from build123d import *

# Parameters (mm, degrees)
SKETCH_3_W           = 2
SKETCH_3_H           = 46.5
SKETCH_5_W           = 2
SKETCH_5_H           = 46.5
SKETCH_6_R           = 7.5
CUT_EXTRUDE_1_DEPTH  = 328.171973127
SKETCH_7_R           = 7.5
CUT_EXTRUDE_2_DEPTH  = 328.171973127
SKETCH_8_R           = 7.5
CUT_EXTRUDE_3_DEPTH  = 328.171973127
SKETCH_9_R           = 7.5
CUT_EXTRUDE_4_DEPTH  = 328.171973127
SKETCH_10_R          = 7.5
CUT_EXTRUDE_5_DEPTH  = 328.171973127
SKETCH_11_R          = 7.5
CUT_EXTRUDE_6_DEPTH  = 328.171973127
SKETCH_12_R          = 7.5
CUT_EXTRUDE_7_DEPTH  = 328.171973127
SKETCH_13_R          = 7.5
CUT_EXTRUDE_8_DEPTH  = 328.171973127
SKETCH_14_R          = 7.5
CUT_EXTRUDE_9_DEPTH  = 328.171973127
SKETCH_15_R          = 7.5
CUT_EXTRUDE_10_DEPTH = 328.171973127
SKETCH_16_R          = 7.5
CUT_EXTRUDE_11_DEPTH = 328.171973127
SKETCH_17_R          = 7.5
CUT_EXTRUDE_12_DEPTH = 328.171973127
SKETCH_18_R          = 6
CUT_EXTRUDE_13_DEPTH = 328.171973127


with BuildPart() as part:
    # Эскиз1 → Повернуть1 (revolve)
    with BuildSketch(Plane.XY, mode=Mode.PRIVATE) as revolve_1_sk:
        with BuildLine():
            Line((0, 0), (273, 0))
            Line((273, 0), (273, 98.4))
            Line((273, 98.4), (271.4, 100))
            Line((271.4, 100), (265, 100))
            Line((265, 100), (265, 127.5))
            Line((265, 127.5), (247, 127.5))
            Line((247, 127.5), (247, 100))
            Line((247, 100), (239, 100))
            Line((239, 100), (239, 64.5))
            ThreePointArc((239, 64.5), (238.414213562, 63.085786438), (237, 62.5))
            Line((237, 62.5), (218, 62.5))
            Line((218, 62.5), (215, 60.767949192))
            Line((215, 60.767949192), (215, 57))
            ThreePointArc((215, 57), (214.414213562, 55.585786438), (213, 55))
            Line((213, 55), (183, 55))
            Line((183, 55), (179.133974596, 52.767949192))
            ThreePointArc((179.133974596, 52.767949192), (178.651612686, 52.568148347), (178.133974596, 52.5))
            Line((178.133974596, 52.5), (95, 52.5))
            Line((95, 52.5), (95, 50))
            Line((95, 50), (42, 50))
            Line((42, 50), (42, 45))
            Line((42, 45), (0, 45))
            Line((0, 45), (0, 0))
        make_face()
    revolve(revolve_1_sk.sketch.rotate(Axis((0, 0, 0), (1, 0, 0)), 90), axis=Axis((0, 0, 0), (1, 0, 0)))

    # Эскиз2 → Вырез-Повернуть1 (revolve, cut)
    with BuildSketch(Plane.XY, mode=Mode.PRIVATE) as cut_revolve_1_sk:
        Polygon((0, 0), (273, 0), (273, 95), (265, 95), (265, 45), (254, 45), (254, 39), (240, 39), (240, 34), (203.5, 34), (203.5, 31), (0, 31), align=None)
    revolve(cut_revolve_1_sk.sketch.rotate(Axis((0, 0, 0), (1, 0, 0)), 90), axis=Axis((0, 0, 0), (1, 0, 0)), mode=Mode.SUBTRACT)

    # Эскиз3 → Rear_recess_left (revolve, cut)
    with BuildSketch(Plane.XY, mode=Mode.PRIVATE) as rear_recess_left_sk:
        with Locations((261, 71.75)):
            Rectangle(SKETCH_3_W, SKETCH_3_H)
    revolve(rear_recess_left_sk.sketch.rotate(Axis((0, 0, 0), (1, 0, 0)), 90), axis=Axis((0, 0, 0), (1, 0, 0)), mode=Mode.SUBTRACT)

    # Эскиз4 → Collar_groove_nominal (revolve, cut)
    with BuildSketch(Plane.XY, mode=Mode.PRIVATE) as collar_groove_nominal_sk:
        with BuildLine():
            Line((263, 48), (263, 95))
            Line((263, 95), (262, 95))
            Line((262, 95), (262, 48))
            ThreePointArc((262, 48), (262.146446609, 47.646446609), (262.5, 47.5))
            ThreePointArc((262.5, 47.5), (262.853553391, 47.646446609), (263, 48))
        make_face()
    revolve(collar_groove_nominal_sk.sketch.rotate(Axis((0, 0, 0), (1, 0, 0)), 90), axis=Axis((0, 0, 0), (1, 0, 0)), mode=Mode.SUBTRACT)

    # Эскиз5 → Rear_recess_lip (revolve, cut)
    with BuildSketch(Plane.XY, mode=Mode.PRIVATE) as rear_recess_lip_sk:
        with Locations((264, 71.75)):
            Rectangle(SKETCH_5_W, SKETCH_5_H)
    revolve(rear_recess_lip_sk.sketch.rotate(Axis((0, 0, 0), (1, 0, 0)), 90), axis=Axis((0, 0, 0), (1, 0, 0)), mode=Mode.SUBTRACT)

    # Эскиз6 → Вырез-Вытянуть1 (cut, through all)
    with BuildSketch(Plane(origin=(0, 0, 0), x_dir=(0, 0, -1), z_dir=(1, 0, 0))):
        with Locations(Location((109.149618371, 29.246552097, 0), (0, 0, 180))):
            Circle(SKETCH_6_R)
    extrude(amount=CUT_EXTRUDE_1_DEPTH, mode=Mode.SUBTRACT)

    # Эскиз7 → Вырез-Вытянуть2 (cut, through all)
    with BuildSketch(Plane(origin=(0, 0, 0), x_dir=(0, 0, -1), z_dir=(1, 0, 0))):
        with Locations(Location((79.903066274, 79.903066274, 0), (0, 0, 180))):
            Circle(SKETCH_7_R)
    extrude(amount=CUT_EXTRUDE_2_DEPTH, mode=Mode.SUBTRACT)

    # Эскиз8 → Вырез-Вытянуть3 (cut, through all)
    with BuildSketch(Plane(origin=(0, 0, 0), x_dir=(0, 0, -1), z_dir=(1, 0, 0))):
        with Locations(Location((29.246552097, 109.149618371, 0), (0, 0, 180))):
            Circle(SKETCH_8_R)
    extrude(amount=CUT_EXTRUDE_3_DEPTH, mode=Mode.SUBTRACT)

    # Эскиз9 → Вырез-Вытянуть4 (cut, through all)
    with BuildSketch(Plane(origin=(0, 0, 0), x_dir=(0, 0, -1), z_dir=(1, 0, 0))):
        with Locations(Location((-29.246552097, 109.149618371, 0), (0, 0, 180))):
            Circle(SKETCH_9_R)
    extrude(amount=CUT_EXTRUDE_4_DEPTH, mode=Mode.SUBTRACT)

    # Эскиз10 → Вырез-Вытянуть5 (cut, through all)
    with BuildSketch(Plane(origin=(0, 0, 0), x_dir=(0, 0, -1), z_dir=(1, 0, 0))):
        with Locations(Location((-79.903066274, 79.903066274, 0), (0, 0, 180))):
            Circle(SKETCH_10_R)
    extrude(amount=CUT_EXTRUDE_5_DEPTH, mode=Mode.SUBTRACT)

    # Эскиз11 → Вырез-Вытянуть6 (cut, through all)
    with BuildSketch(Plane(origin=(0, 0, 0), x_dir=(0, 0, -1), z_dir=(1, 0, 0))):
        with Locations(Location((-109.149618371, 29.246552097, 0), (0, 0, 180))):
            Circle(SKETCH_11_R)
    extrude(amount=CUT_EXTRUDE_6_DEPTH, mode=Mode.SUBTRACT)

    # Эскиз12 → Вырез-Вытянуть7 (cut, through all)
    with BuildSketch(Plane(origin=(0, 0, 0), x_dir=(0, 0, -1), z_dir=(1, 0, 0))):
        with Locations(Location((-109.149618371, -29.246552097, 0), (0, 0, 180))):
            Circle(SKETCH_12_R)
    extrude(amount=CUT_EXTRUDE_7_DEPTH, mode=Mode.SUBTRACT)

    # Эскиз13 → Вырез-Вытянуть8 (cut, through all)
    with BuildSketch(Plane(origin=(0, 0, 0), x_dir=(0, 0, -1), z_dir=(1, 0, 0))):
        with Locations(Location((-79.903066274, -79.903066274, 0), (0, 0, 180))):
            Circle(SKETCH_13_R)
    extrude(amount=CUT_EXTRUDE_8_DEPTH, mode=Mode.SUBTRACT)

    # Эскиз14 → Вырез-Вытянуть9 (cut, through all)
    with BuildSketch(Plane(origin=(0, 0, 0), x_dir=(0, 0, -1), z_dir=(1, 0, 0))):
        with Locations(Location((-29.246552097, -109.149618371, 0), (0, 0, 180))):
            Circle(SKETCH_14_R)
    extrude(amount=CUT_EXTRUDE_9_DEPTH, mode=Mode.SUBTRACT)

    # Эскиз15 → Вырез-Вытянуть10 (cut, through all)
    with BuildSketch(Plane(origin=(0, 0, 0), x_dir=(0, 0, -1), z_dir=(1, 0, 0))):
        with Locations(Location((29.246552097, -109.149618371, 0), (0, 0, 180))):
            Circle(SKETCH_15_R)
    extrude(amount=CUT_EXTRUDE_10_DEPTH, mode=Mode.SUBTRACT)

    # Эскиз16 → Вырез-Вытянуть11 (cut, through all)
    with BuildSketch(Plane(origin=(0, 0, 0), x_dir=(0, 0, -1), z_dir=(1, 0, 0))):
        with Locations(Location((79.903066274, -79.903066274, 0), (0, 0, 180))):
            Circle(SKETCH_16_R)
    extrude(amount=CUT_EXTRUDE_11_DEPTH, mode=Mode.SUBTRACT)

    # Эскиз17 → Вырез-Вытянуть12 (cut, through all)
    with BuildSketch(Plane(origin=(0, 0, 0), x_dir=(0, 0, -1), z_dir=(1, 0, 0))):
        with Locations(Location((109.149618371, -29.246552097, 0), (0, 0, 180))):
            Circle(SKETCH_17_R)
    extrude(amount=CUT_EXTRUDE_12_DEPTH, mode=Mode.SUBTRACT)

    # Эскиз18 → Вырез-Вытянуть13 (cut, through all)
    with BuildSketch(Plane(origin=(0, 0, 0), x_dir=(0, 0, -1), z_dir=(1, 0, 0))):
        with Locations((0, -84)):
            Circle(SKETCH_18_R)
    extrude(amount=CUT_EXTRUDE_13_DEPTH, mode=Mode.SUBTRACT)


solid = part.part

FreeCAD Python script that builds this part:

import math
import FreeCAD as App
import Part
import Sketcher
from FreeCAD import Vector
Q = App.Units.Quantity


def add_polygon(sketch, points):
    """Adds a closed chain of lines whose ends are joined by coincident constraints."""
    first, n = sketch.GeometryCount, len(points)
    for a, b in zip(points, points[1:] + points[:1]):
        sketch.addGeometry(Part.LineSegment(App.Vector(*a, 0), App.Vector(*b, 0)), False)
    for i in range(n):
        sketch.addConstraint(Sketcher.Constraint("Coincident", first + i, 2, first + (i + 1) % n, 1))

doc = App.newDocument("Part")
body = doc.addObject("PartDesign::Body", "Body")

# Sketch on XY plane
sketch1 = body.newObject("Sketcher::SketchObject", "Sketch")
sketch1.AttachmentSupport = (doc.getObject("XY_Plane"), [""])
sketch1.MapMode = "FlatFace"
sketch1.addGeometry([
    Part.LineSegment(Vector(0, 0, 0), Vector(273, 0, 0)),  # 0
    Part.LineSegment(Vector(273, 0, 0), Vector(273, 98.4, 0)),  # 1
    Part.LineSegment(Vector(273, 98.4, 0), Vector(271.4, 100, 0)),  # 2
    Part.LineSegment(Vector(271.4, 100, 0), Vector(265, 100, 0)),  # 3
    Part.LineSegment(Vector(265, 100, 0), Vector(265, 127.5, 0)),  # 4
    Part.LineSegment(Vector(265, 127.5, 0), Vector(247, 127.5, 0)),  # 5
    Part.LineSegment(Vector(247, 127.5, 0), Vector(247, 100, 0)),  # 6
    Part.LineSegment(Vector(247, 100, 0), Vector(239, 100, 0)),  # 7
    Part.LineSegment(Vector(239, 100, 0), Vector(239, 64.5, 0)),  # 8
    Part.ArcOfCircle(Part.Circle(Vector(237, 64.5, 0), Vector(0, 0, 1), 2), math.radians(-90), math.radians(0)),  # 9
    Part.LineSegment(Vector(237, 62.5, 0), Vector(218, 62.5, 0)),  # 10
    Part.LineSegment(Vector(218, 62.5, 0), Vector(215, 60.767949, 0)),  # 11
    Part.LineSegment(Vector(215, 60.767949, 0), Vector(215, 57, 0)),  # 12
    Part.ArcOfCircle(Part.Circle(Vector(213, 57, 0), Vector(0, 0, 1), 2), math.radians(-90), math.radians(0)),  # 13
    Part.LineSegment(Vector(213, 55, 0), Vector(183, 55, 0)),  # 14
    Part.LineSegment(Vector(183, 55, 0), Vector(179.133975, 52.767949, 0)),  # 15
    Part.ArcOfCircle(Part.Circle(Vector(178.133975, 54.5, 0), Vector(0, 0, 1), 2), math.radians(-90), math.radians(-60)),  # 16
    Part.LineSegment(Vector(178.133975, 52.5, 0), Vector(95, 52.5, 0)),  # 17
    Part.LineSegment(Vector(95, 52.5, 0), Vector(95, 50, 0)),  # 18
    Part.LineSegment(Vector(95, 50, 0), Vector(42, 50, 0)),  # 19
    Part.LineSegment(Vector(42, 50, 0), Vector(42, 45, 0)),  # 20
    Part.LineSegment(Vector(42, 45, 0), Vector(0, 45, 0)),  # 21
    Part.LineSegment(Vector(0, 45, 0), Vector(0, 0, 0)),  # 22
], False)
sketch1.addConstraint([
    Sketcher.Constraint("Coincident", 0, 2, 1, 1),
    Sketcher.Constraint("Coincident", 1, 2, 2, 1),
    Sketcher.Constraint("Coincident", 2, 2, 3, 1),
    Sketcher.Constraint("Coincident", 3, 2, 4, 1),
    Sketcher.Constraint("Coincident", 4, 2, 5, 1),
    Sketcher.Constraint("Coincident", 5, 2, 6, 1),
    Sketcher.Constraint("Coincident", 6, 2, 7, 1),
    Sketcher.Constraint("Coincident", 7, 2, 8, 1),
    Sketcher.Constraint("Tangent", 8, 2, 9, 2),
    Sketcher.Constraint("Tangent", 9, 1, 10, 1),
    Sketcher.Constraint("Coincident", 10, 2, 11, 1),
    Sketcher.Constraint("Coincident", 11, 2, 12, 1),
    Sketcher.Constraint("Tangent", 12, 2, 13, 2),
    Sketcher.Constraint("Tangent", 13, 1, 14, 1),
    Sketcher.Constraint("Coincident", 14, 2, 15, 1),
    Sketcher.Constraint("Tangent", 15, 2, 16, 2),
    Sketcher.Constraint("Tangent", 16, 1, 17, 1),
    Sketcher.Constraint("Coincident", 17, 2, 18, 1),
    Sketcher.Constraint("Coincident", 18, 2, 19, 1),
    Sketcher.Constraint("Coincident", 19, 2, 20, 1),
    Sketcher.Constraint("Coincident", 20, 2, 21, 1),
    Sketcher.Constraint("Coincident", 21, 2, 22, 1),
    Sketcher.Constraint("Coincident", 22, 2, 0, 1),
    Sketcher.Constraint("Horizontal", 0),
    Sketcher.Constraint("Vertical", 1),
    Sketcher.Constraint("Horizontal", 3),
    Sketcher.Constraint("Vertical", 4),
    Sketcher.Constraint("Horizontal", 5),
    Sketcher.Constraint("Vertical", 6),
    Sketcher.Constraint("Horizontal", 7),
    Sketcher.Constraint("Vertical", 8),
    Sketcher.Constraint("Horizontal", 10),
    Sketcher.Constraint("Vertical", 12),
    Sketcher.Constraint("Horizontal", 14),
    Sketcher.Constraint("Horizontal", 17),
    Sketcher.Constraint("Vertical", 18),
    Sketcher.Constraint("Horizontal", 19),
    Sketcher.Constraint("Vertical", 20),
    Sketcher.Constraint("Horizontal", 21),
    Sketcher.Constraint("Vertical", 22),
    Sketcher.Constraint("Coincident", 22, 2, -1, 1),
    Sketcher.Constraint("Equal", 9, 13),
    Sketcher.Constraint("Equal", 13, 16),
    Sketcher.Constraint("Parallel", 11, 15),
    Sketcher.Constraint("Horizontal", 3, 2, 6, 2),
    Sketcher.Constraint("Radius", 9, 2.0),
    Sketcher.Constraint("DistanceX", 0, 1, 0, 2, 273.0),
    Sketcher.Constraint("DistanceX", 5, 2, 5, 1, 18.0),
    Sketcher.Constraint("DistanceX", 7, 2, 7, 1, 8.0),
    Sketcher.Constraint("DistanceX", 10, 2, 10, 1, 19.0),
    Sketcher.Constraint("DistanceX", 14, 2, 14, 1, 30.0),
    Sketcher.Constraint("DistanceX", 19, 2, 19, 1, 53.0),
    Sketcher.Constraint("DistanceX", 21, 2, 21, 1, 42.0),
    Sketcher.Constraint("DistanceY", 20, 2, 20, 1, 5.0),
    Sketcher.Constraint("DistanceY", 22, 2, 22, 1, 45.0),
    Sketcher.Constraint("Angle", 2, Q("135 deg")),
    Sketcher.Constraint("Angle", 11, Q("-150 deg")),
    Sketcher.Constraint("DistanceX", 3, 2, 3, 1, 6.4),
    Sketcher.Constraint("DistanceY", 1, 1, 1, 2, 98.4),
    Sketcher.Constraint("DistanceY", 4, 1, 4, 2, 27.5),
    Sketcher.Constraint("DistanceY", 8, 2, 8, 1, 35.5),
    Sketcher.Constraint("DistanceY", 18, 2, 18, 1, 2.5),
    Sketcher.Constraint("DistanceX", -1, 1, 9, 3, 237.0),
    Sketcher.Constraint("DistanceX", -1, 1, 13, 3, 213.0),
    Sketcher.Constraint("DistanceY", -1, 1, 13, 3, 57.0),
])
revolution = body.newObject("PartDesign::Revolution", "Revolution")
revolution.Profile = sketch1
revolution.ReferenceAxis = (sketch1, ["H_Axis"])
revolution.Angle = 360

# Sketch on XY plane
sketch2 = body.newObject("Sketcher::SketchObject", "Sketch001")
sketch2.AttachmentSupport = (doc.getObject("XY_Plane"), [""])
sketch2.MapMode = "FlatFace"
add_polygon(sketch2, [(0, 0), (273, 0), (273, 95), (265, 95), (265, 45), (254, 45), (254, 39), (240, 39), (240, 34), (203.5, 34), (203.5, 31), (0, 31)])  # lines 0-11
sketch2.addConstraint([
    Sketcher.Constraint("Horizontal", 0),
    Sketcher.Constraint("Vertical", 1),
    Sketcher.Constraint("Horizontal", 2),
    Sketcher.Constraint("Vertical", 3),
    Sketcher.Constraint("Horizontal", 4),
    Sketcher.Constraint("Vertical", 5),
    Sketcher.Constraint("Horizontal", 6),
    Sketcher.Constraint("Vertical", 7),
    Sketcher.Constraint("Horizontal", 8),
    Sketcher.Constraint("Vertical", 9),
    Sketcher.Constraint("Horizontal", 10),
    Sketcher.Constraint("Vertical", 11),
    Sketcher.Constraint("Coincident", 11, 2, -1, 1),
    Sketcher.Constraint("DistanceX", 0, 1, 0, 2, 273.0),
    Sketcher.Constraint("DistanceX", 2, 2, 2, 1, 8.0),
    Sketcher.Constraint("DistanceX", 4, 2, 4, 1, 11.0),
    Sketcher.Constraint("DistanceX", 6, 2, 6, 1, 14.0),
    Sketcher.Constraint("DistanceY", 1, 1, 1, 2, 95.0),
    Sketcher.Constraint("DistanceY", 3, 2, 3, 1, 50.0),
    Sketcher.Constraint("DistanceY", 5, 2, 5, 1, 6.0),
    Sketcher.Constraint("DistanceY", 7, 2, 7, 1, 5.0),
    Sketcher.Constraint("DistanceY", 9, 2, 9, 1, 3.0),
    Sketcher.Constraint("DistanceX", 8, 2, 8, 1, 36.5),
])
groove = body.newObject("PartDesign::Groove", "Groove")
groove.Profile = sketch2
groove.ReferenceAxis = (sketch2, ["H_Axis"])
groove.Angle = 360

# Sketch on XY plane
sketch3 = body.newObject("Sketcher::SketchObject", "Sketch002")
sketch3.AttachmentSupport = (doc.getObject("XY_Plane"), [""])
sketch3.MapMode = "FlatFace"
add_polygon(sketch3, [(260, 95), (260, 48.5), (262, 48.5), (262, 95)])  # lines 0-3
sketch3.addConstraint([
    Sketcher.Constraint("Vertical", 0),
    Sketcher.Constraint("Horizontal", 1),
    Sketcher.Constraint("Vertical", 2),
    Sketcher.Constraint("Horizontal", 3),
    Sketcher.Constraint("DistanceX", 1, 1, 1, 2, 2.0),
    Sketcher.Constraint("DistanceY", 0, 2, 0, 1, 46.5),
    Sketcher.Constraint("DistanceX", -1, 1, 0, 2, 260.0),
    Sketcher.Constraint("DistanceY", -1, 1, 2, 2, 95.0),
])
groove2 = body.newObject("PartDesign::Groove", "Groove001")
groove2.Profile = sketch3
groove2.ReferenceAxis = (sketch3, ["H_Axis"])
groove2.Angle = 360

# Sketch on XY plane
sketch4 = body.newObject("Sketcher::SketchObject", "Sketch003")
sketch4.AttachmentSupport = (doc.getObject("XY_Plane"), [""])
sketch4.MapMode = "FlatFace"
sketch4.addGeometry([
    Part.LineSegment(Vector(263, 48, 0), Vector(263, 95, 0)),  # 0
    Part.LineSegment(Vector(263, 95, 0), Vector(262, 95, 0)),  # 1
    Part.LineSegment(Vector(262, 95, 0), Vector(262, 48, 0)),  # 2
    Part.ArcOfCircle(Part.Circle(Vector(262.5, 48, 0), Vector(0, 0, 1), 0.5), math.radians(180), math.radians(270)),  # 3
    Part.ArcOfCircle(Part.Circle(Vector(262.5, 48, 0), Vector(0, 0, 1), 0.5), math.radians(-90), math.radians(0)),  # 4
], False)
sketch4.addConstraint([
    Sketcher.Constraint("Coincident", 0, 2, 1, 1),
    Sketcher.Constraint("Coincident", 1, 2, 2, 1),
    Sketcher.Constraint("Tangent", 2, 2, 3, 1),
    Sketcher.Constraint("Tangent", 3, 2, 4, 1),
    Sketcher.Constraint("Tangent", 4, 2, 0, 1),
    Sketcher.Constraint("Vertical", 0),
    Sketcher.Constraint("Horizontal", 1),
    Sketcher.Constraint("Vertical", 2),
    Sketcher.Constraint("Equal", 3, 4),
    Sketcher.Constraint("Vertical", 4, 3, 3, 2),
    Sketcher.Constraint("Radius", 3, 0.5),
    Sketcher.Constraint("DistanceY", 0, 1, 0, 2, 47.0),
    Sketcher.Constraint("DistanceY", -1, 1, 3, 3, 48.0),
    Sketcher.Constraint("DistanceX", -1, 1, 0, 2, 263.0),
])
groove3 = body.newObject("PartDesign::Groove", "Groove002")
groove3.Profile = sketch4
groove3.ReferenceAxis = (sketch4, ["H_Axis"])
groove3.Angle = 360

# Sketch on XY plane
sketch5 = body.newObject("Sketcher::SketchObject", "Sketch004")
sketch5.AttachmentSupport = (doc.getObject("XY_Plane"), [""])
sketch5.MapMode = "FlatFace"
add_polygon(sketch5, [(263, 95), (263, 48.5), (265, 48.5), (265, 95)])  # lines 0-3
sketch5.addConstraint([
    Sketcher.Constraint("Vertical", 0),
    Sketcher.Constraint("Horizontal", 1),
    Sketcher.Constraint("Vertical", 2),
    Sketcher.Constraint("Horizontal", 3),
    Sketcher.Constraint("DistanceX", 1, 1, 1, 2, 2.0),
    Sketcher.Constraint("DistanceY", 0, 2, 0, 1, 46.5),
    Sketcher.Constraint("DistanceX", -1, 1, 0, 2, 263.0),
    Sketcher.Constraint("DistanceY", -1, 1, 2, 2, 95.0),
])
groove4 = body.newObject("PartDesign::Groove", "Groove003")
groove4.Profile = sketch5
groove4.ReferenceAxis = (sketch5, ["H_Axis"])
groove4.Angle = 360

# Sketch on YZ plane
sketch6 = body.newObject("Sketcher::SketchObject", "Sketch005")
sketch6.AttachmentSupport = (doc.getObject("YZ_Plane"), [""])
sketch6.MapMode = "FlatFace"
sketch6.addGeometry(Part.Circle(Vector(29.246552, -109.149618, 0), Vector(0, 0, 1), 7.5), False)
sketch6.addConstraint([
    Sketcher.Constraint("Diameter", 0, 15.0),
    Sketcher.Constraint("DistanceY", 0, 3, -1, 1, 109.149618),
    Sketcher.Constraint("DistanceX", -1, 1, 0, 3, 29.246552),
])
pocket1 = body.newObject("PartDesign::Pocket", "Pocket")
pocket1.Profile = sketch6
pocket1.Type = "ThroughAll"
pocket1.Reversed = True

# Sketch on YZ plane
sketch7 = body.newObject("Sketcher::SketchObject", "Sketch006")
sketch7.AttachmentSupport = (doc.getObject("YZ_Plane"), [""])
sketch7.MapMode = "FlatFace"
sketch7.addGeometry(Part.Circle(Vector(79.903066, -79.903066, 0), Vector(0, 0, 1), 7.5), False)
sketch7.addConstraint([
    Sketcher.Constraint("Diameter", 0, 15.0),
    Sketcher.Constraint("DistanceX", -1, 1, 0, 3, 79.903066),
    Sketcher.Constraint("DistanceY", 0, 3, -1, 1, 79.903066),
])
pocket2 = body.newObject("PartDesign::Pocket", "Pocket001")
pocket2.Profile = sketch7
pocket2.Type = "ThroughAll"
pocket2.Reversed = True

# Sketch on YZ plane
sketch8 = body.newObject("Sketcher::SketchObject", "Sketch007")
sketch8.AttachmentSupport = (doc.getObject("YZ_Plane"), [""])
sketch8.MapMode = "FlatFace"
sketch8.addGeometry(Part.Circle(Vector(109.149618, -29.246552, 0), Vector(0, 0, 1), 7.5), False)
sketch8.addConstraint([
    Sketcher.Constraint("Diameter", 0, 15.0),
    Sketcher.Constraint("DistanceX", -1, 1, 0, 3, 109.149618),
    Sketcher.Constraint("DistanceY", 0, 3, -1, 1, 29.246552),
])
pocket3 = body.newObject("PartDesign::Pocket", "Pocket002")
pocket3.Profile = sketch8
pocket3.Type = "ThroughAll"
pocket3.Reversed = True

# Sketch on YZ plane
sketch9 = body.newObject("Sketcher::SketchObject", "Sketch008")
sketch9.AttachmentSupport = (doc.getObject("YZ_Plane"), [""])
sketch9.MapMode = "FlatFace"
sketch9.addGeometry(Part.Circle(Vector(109.149618, 29.246552, 0), Vector(0, 0, 1), 7.5), False)
sketch9.addConstraint([
    Sketcher.Constraint("Diameter", 0, 15.0),
    Sketcher.Constraint("DistanceX", -1, 1, 0, 3, 109.149618),
    Sketcher.Constraint("DistanceY", -1, 1, 0, 3, 29.246552),
])
pocket4 = body.newObject("PartDesign::Pocket", "Pocket003")
pocket4.Profile = sketch9
pocket4.Type = "ThroughAll"
pocket4.Reversed = True

# Sketch on YZ plane
sketch10 = body.newObject("Sketcher::SketchObject", "Sketch009")
sketch10.AttachmentSupport = (doc.getObject("YZ_Plane"), [""])
sketch10.MapMode = "FlatFace"
sketch10.addGeometry(Part.Circle(Vector(79.903066, 79.903066, 0), Vector(0, 0, 1), 7.5), False)
sketch10.addConstraint([
    Sketcher.Constraint("Diameter", 0, 15.0),
    Sketcher.Constraint("DistanceX", -1, 1, 0, 3, 79.903066),
    Sketcher.Constraint("DistanceY", -1, 1, 0, 3, 79.903066),
])
pocket5 = body.newObject("PartDesign::Pocket", "Pocket004")
pocket5.Profile = sketch10
pocket5.Type = "ThroughAll"
pocket5.Reversed = True

# Sketch on YZ plane
sketch11 = body.newObject("Sketcher::SketchObject", "Sketch010")
sketch11.AttachmentSupport = (doc.getObject("YZ_Plane"), [""])
sketch11.MapMode = "FlatFace"
sketch11.addGeometry(Part.Circle(Vector(29.246552, 109.149618, 0), Vector(0, 0, 1), 7.5), False)
sketch11.addConstraint([
    Sketcher.Constraint("Diameter", 0, 15.0),
    Sketcher.Constraint("DistanceY", -1, 1, 0, 3, 109.149618),
    Sketcher.Constraint("DistanceX", -1, 1, 0, 3, 29.246552),
])
pocket6 = body.newObject("PartDesign::Pocket", "Pocket005")
pocket6.Profile = sketch11
pocket6.Type = "ThroughAll"
pocket6.Reversed = True

# Sketch on YZ plane
sketch12 = body.newObject("Sketcher::SketchObject", "Sketch011")
sketch12.AttachmentSupport = (doc.getObject("YZ_Plane"), [""])
sketch12.MapMode = "FlatFace"
sketch12.addGeometry(Part.Circle(Vector(-29.246552, 109.149618, 0), Vector(0, 0, 1), 7.5), False)
sketch12.addConstraint([
    Sketcher.Constraint("Diameter", 0, 15.0),
    Sketcher.Constraint("DistanceY", -1, 1, 0, 3, 109.149618),
    Sketcher.Constraint("DistanceX", 0, 3, -1, 1, 29.246552),
])
pocket7 = body.newObject("PartDesign::Pocket", "Pocket006")
pocket7.Profile = sketch12
pocket7.Type = "ThroughAll"
pocket7.Reversed = True

# Sketch on YZ plane
sketch13 = body.newObject("Sketcher::SketchObject", "Sketch012")
sketch13.AttachmentSupport = (doc.getObject("YZ_Plane"), [""])
sketch13.MapMode = "FlatFace"
sketch13.addGeometry(Part.Circle(Vector(-79.903066, 79.903066, 0), Vector(0, 0, 1), 7.5), False)
sketch13.addConstraint([
    Sketcher.Constraint("Diameter", 0, 15.0),
    Sketcher.Constraint("DistanceX", 0, 3, -1, 1, 79.903066),
    Sketcher.Constraint("DistanceY", -1, 1, 0, 3, 79.903066),
])
pocket8 = body.newObject("PartDesign::Pocket", "Pocket007")
pocket8.Profile = sketch13
pocket8.Type = "ThroughAll"
pocket8.Reversed = True

# Sketch on YZ plane
sketch14 = body.newObject("Sketcher::SketchObject", "Sketch013")
sketch14.AttachmentSupport = (doc.getObject("YZ_Plane"), [""])
sketch14.MapMode = "FlatFace"
sketch14.addGeometry(Part.Circle(Vector(-109.149618, 29.246552, 0), Vector(0, 0, 1), 7.5), False)
sketch14.addConstraint([
    Sketcher.Constraint("Diameter", 0, 15.0),
    Sketcher.Constraint("DistanceX", 0, 3, -1, 1, 109.149618),
    Sketcher.Constraint("DistanceY", -1, 1, 0, 3, 29.246552),
])
pocket9 = body.newObject("PartDesign::Pocket", "Pocket008")
pocket9.Profile = sketch14
pocket9.Type = "ThroughAll"
pocket9.Reversed = True

# Sketch on YZ plane
sketch15 = body.newObject("Sketcher::SketchObject", "Sketch014")
sketch15.AttachmentSupport = (doc.getObject("YZ_Plane"), [""])
sketch15.MapMode = "FlatFace"
sketch15.addGeometry(Part.Circle(Vector(-109.149618, -29.246552, 0), Vector(0, 0, 1), 7.5), False)
sketch15.addConstraint([
    Sketcher.Constraint("Diameter", 0, 15.0),
    Sketcher.Constraint("DistanceX", 0, 3, -1, 1, 109.149618),
    Sketcher.Constraint("DistanceY", 0, 3, -1, 1, 29.246552),
])
pocket10 = body.newObject("PartDesign::Pocket", "Pocket009")
pocket10.Profile = sketch15
pocket10.Type = "ThroughAll"
pocket10.Reversed = True

# Sketch on YZ plane
sketch16 = body.newObject("Sketcher::SketchObject", "Sketch015")
sketch16.AttachmentSupport = (doc.getObject("YZ_Plane"), [""])
sketch16.MapMode = "FlatFace"
sketch16.addGeometry(Part.Circle(Vector(-79.903066, -79.903066, 0), Vector(0, 0, 1), 7.5), False)
sketch16.addConstraint([
    Sketcher.Constraint("Diameter", 0, 15.0),
    Sketcher.Constraint("DistanceX", 0, 3, -1, 1, 79.903066),
    Sketcher.Constraint("DistanceY", 0, 3, -1, 1, 79.903066),
])
pocket11 = body.newObject("PartDesign::Pocket", "Pocket010")
pocket11.Profile = sketch16
pocket11.Type = "ThroughAll"
pocket11.Reversed = True

# Sketch on YZ plane
sketch17 = body.newObject("Sketcher::SketchObject", "Sketch016")
sketch17.AttachmentSupport = (doc.getObject("YZ_Plane"), [""])
sketch17.MapMode = "FlatFace"
sketch17.addGeometry(Part.Circle(Vector(-29.246552, -109.149618, 0), Vector(0, 0, 1), 7.5), False)
sketch17.addConstraint([
    Sketcher.Constraint("Diameter", 0, 15.0),
    Sketcher.Constraint("DistanceY", 0, 3, -1, 1, 109.149618),
    Sketcher.Constraint("DistanceX", 0, 3, -1, 1, 29.246552),
])
pocket12 = body.newObject("PartDesign::Pocket", "Pocket011")
pocket12.Profile = sketch17
pocket12.Type = "ThroughAll"
pocket12.Reversed = True

# Sketch on YZ plane
sketch18 = body.newObject("Sketcher::SketchObject", "Sketch017")
sketch18.AttachmentSupport = (doc.getObject("YZ_Plane"), [""])
sketch18.MapMode = "FlatFace"
sketch18.addGeometry(Part.Circle(Vector(-84, 0, 0), Vector(0, 0, 1), 6), False)
sketch18.addConstraint([
    Sketcher.Constraint("PointOnObject", 0, 3, -1),
    Sketcher.Constraint("Diameter", 0, 12.0),
    Sketcher.Constraint("DistanceX", 0, 3, -1, 1, 84.0),
])
pocket13 = body.newObject("PartDesign::Pocket", "Pocket012")
pocket13.Profile = sketch18
pocket13.Type = "ThroughAll"
pocket13.Reversed = True

doc.recompute()
